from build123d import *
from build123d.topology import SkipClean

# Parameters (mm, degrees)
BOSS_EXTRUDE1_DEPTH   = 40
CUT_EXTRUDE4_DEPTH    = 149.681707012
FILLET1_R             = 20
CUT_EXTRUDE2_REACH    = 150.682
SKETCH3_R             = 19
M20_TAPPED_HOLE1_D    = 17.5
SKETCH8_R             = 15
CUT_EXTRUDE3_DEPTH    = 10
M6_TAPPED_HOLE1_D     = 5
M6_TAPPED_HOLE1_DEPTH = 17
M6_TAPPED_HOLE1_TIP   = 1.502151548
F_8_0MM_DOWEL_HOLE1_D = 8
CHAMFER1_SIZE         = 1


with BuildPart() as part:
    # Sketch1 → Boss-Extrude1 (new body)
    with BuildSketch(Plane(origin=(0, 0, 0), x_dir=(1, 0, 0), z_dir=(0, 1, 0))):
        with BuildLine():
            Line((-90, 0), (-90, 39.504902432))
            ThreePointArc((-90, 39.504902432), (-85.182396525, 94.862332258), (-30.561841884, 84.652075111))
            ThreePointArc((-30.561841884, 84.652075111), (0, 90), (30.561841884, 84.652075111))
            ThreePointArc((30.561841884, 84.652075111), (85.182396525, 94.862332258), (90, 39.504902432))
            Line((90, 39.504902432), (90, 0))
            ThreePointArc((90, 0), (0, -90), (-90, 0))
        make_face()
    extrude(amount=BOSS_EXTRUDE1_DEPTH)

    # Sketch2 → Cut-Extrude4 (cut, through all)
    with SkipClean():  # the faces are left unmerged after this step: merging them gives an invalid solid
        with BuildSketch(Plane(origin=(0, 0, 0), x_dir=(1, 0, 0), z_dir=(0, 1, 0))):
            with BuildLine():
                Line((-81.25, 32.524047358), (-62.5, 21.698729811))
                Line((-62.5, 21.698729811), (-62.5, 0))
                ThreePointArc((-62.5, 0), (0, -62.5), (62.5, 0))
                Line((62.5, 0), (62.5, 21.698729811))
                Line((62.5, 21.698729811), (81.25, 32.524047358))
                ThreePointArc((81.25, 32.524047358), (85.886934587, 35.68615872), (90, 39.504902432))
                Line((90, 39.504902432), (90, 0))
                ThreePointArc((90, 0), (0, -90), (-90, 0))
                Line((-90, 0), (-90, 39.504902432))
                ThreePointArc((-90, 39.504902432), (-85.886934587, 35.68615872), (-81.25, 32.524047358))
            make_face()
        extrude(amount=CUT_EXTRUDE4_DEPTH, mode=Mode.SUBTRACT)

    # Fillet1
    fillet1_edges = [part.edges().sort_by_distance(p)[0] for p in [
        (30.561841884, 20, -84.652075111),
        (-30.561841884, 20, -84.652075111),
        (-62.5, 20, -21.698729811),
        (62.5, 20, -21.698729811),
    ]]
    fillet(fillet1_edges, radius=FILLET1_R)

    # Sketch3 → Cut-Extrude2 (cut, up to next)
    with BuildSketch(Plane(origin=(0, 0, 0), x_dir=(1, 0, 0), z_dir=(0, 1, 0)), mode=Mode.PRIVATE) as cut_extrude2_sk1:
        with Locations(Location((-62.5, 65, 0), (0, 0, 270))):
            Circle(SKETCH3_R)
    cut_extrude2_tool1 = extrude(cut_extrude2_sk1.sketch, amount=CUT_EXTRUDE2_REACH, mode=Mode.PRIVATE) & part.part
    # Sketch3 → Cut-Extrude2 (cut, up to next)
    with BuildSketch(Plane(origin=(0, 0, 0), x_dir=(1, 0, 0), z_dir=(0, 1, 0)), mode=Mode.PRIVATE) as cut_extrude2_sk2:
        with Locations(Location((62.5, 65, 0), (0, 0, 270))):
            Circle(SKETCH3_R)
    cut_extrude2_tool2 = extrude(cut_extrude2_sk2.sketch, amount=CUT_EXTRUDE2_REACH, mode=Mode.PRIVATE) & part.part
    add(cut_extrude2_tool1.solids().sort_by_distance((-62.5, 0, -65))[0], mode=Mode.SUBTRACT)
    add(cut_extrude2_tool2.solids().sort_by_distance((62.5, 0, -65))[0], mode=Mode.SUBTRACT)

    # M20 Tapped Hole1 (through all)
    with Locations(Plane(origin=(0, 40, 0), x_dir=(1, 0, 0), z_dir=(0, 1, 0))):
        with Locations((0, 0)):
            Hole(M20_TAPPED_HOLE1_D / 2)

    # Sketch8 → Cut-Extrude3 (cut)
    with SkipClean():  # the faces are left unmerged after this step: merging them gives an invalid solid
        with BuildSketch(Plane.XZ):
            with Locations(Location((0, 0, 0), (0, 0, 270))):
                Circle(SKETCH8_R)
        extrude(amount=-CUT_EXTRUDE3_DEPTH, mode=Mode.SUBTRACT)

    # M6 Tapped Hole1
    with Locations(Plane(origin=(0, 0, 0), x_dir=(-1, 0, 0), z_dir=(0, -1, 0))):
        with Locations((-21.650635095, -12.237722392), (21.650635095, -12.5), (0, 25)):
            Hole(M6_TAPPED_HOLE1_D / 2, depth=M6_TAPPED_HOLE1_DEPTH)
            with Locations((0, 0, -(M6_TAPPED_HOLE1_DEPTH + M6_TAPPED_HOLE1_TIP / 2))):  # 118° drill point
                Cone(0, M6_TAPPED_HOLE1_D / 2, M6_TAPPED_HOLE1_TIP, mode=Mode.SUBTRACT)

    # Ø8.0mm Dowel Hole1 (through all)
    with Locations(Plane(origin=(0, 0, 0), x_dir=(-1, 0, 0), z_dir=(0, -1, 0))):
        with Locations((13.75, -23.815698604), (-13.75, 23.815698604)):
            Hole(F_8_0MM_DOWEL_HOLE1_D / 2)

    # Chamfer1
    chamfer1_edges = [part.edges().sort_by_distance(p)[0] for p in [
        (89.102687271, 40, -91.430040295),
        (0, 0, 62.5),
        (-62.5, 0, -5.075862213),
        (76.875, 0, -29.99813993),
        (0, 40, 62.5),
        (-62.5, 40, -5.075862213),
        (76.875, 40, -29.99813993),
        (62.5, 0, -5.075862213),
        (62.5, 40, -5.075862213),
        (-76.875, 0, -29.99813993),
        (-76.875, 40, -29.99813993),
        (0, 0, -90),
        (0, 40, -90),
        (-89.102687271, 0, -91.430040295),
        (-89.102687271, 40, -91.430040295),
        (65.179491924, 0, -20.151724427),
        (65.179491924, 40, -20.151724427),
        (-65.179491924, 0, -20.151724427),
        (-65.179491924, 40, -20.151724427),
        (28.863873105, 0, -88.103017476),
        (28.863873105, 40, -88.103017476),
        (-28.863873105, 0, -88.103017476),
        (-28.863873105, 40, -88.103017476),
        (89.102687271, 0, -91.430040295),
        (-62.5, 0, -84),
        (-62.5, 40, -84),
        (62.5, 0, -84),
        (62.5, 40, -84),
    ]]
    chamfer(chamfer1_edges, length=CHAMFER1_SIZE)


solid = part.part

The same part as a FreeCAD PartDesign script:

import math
import FreeCAD as App
import Part
import Sketcher
from FreeCAD import Vector
Q = App.Units.Quantity


def edges_at(feature, points):
    """Names of the edges that pass closest to the given points."""
    edges = feature.Shape.Edges
    near = lambda p: min(range(len(edges)), key=lambda i: edges[i].distToShape(Part.Vertex(*p))[0])
    return sorted({f"Edge{near(p) + 1}" for p in points})

doc = App.newDocument("Part")
body = doc.addObject("PartDesign::Body", "Body")

sketch1 = body.newObject("Sketcher::SketchObject", "Sketch")
sketch1.AttachmentSupport = (doc.getObject("XZ_Plane"), [""])
sketch1.MapMode = "FlatFace"
sketch1.addGeometry(Part.LineSegment(Vector(-90, -40, 0), Vector(-90, 0, 0)), False)
sketch1.addGeometry(Part.ArcOfCircle(Part.Circle(Vector(0, 0, 0), Vector(0, 0, 1), 90), math.radians(0), math.radians(180)), False)
sketch1.addGeometry(Part.LineSegment(Vector(90, 0, 0), Vector(90, -40, 0)), False)
sketch1.addGeometry(Part.ArcOfCircle(Part.Circle(Vector(62, -65, 0), Vector(0, 0, 1), 38), math.radians(-148), math.radians(43)), False)
sketch1.addGeometry(Part.ArcOfCircle(Part.Circle(Vector(0, 0, 0), Vector(0, 0, 1), 90), math.radians(-110), math.radians(-70)), False)
sketch1.addGeometry(Part.ArcOfCircle(Part.Circle(Vector(-62, -65, 0), Vector(0, 0, 1), 38), math.radians(137), math.radians(328)), False)
sketch1.addConstraint(Sketcher.Constraint("Tangent", 0, 2, 1, 2))
sketch1.addConstraint(Sketcher.Constraint("Tangent", 1, 1, 2, 1))
sketch1.addConstraint(Sketcher.Constraint("Coincident", 2, 2, 3, 2))
sketch1.addConstraint(Sketcher.Constraint("Coincident", 3, 1, 4, 2))
sketch1.addConstraint(Sketcher.Constraint("Coincident", 4, 1, 5, 2))
sketch1.addConstraint(Sketcher.Constraint("Coincident", 5, 1, 0, 1))
sketch1.addConstraint(Sketcher.Constraint("Vertical", 0))
sketch1.addConstraint(Sketcher.Constraint("Vertical", 2))
sketch1.addConstraint(Sketcher.Constraint("Coincident", 1, 3, -1, 1))
sketch1.addConstraint(Sketcher.Constraint("Coincident", 4, 3, -1, 1))
sketch1.addConstraint(Sketcher.Constraint("Equal", 1, 4))
sketch1.addConstraint(Sketcher.Constraint("Equal", 3, 5))
sketch1.addConstraint(Sketcher.Constraint("Symmetric", 3, 3, 5, 3, -2))
sketch1.addConstraint(Sketcher.Constraint("Radius", 1, Q("90 mm")))
sketch1.addConstraint(Sketcher.Constraint("Radius", 3, Q("37.5 mm")))
sketch1.addConstraint(Sketcher.Constraint("DistanceY", 3, 3, -1, 1, Q("65 mm")))
sketch1.addConstraint(Sketcher.Constraint("DistanceX", 5, 3, 3, 3, Q("125 mm")))
pad1 = body.newObject("PartDesign::Pad", "Pad")
pad1.Profile = sketch1
pad1.Length = 40
pad1.Reversed = True

sketch2 = body.newObject("Sketcher::SketchObject", "Sketch001")
sketch2.AttachmentSupport = (doc.getObject("XZ_Plane"), [""])
sketch2.MapMode = "FlatFace"
sketch2.addGeometry(Part.LineSegment(Vector(-62, -22, 0), Vector(-81, -33, 0)), False)
sketch2.addGeometry(Part.ArcOfCircle(Part.Circle(Vector(-62, -65, 0), Vector(0, 0, 1), 38), math.radians(120), math.radians(137.17)), False)
sketch2.addGeometry(Part.LineSegment(Vector(-90, -40, 0), Vector(-90, 0, 0)), False)
sketch2.addGeometry(Part.ArcOfCircle(Part.Circle(Vector(0, 0, 0), Vector(0, 0, 1), 90), math.radians(0), math.radians(180)), False)
sketch2.addGeometry(Part.LineSegment(Vector(90, 0, 0), Vector(90, -40, 0)), False)
sketch2.addGeometry(Part.ArcOfCircle(Part.Circle(Vector(62, -65, 0), Vector(0, 0, 1), 38), math.radians(42.83), math.radians(60)), False)
sketch2.addGeometry(Part.LineSegment(Vector(81, -33, 0), Vector(62, -22, 0)), False)
sketch2.addGeometry(Part.LineSegment(Vector(62, -22, 0), Vector(62, 0, 0)), False)
sketch2.addGeometry(Part.ArcOfCircle(Part.Circle(Vector(0, 0, 0), Vector(0, 0, 1), 62), math.radians(0), math.radians(180)), False)
sketch2.addGeometry(Part.LineSegment(Vector(-62, 0, 0), Vector(-62, -22, 0)), False)
sketch2.addConstraint(Sketcher.Constraint("Tangent", 0, 2, 1, 1))
sketch2.addConstraint(Sketcher.Constraint("Coincident", 1, 2, 2, 1))
sketch2.addConstraint(Sketcher.Constraint("Tangent", 2, 2, 3, 2))
sketch2.addConstraint(Sketcher.Constraint("Tangent", 3, 1, 4, 1))
sketch2.addConstraint(Sketcher.Constraint("Coincident", 4, 2, 5, 1))
sketch2.addConstraint(Sketcher.Constraint("Tangent", 5, 2, 6, 1))
sketch2.addConstraint(Sketcher.Constraint("Coincident", 6, 2, 7, 1))
sketch2.addConstraint(Sketcher.Constraint("Tangent", 7, 2, 8, 1))
sketch2.addConstraint(Sketcher.Constraint("Tangent", 8, 2, 9, 1))
sketch2.addConstraint(Sketcher.Constraint("Coincident", 9, 2, 0, 1))
sketch2.addConstraint(Sketcher.Constraint("Vertical", 2))
sketch2.addConstraint(Sketcher.Constraint("Vertical", 4))
sketch2.addConstraint(Sketcher.Constraint("Vertical", 7))
sketch2.addConstraint(Sketcher.Constraint("Vertical", 9))
sketch2.addConstraint(Sketcher.Constraint("Coincident", 3, 3, -1, 1))
sketch2.addConstraint(Sketcher.Constraint("Coincident", 8, 3, -1, 1))
sketch2.addConstraint(Sketcher.Constraint("Equal", 1, 5))
sketch2.addConstraint(Sketcher.Constraint("Symmetric", 1, 3, 5, 3, -2))
sketch2.addConstraint(Sketcher.Constraint("Horizontal", 0, 2, 5, 2))
sketch2.addConstraint(Sketcher.Constraint("Vertical", 5, 3, 6, 2))
sketch2.addConstraint(Sketcher.Constraint("Radius", 3, Q("90 mm")))
sketch2.addConstraint(Sketcher.Constraint("Radius", 1, Q("37.5 mm")))
sketch2.addConstraint(Sketcher.Constraint("Radius", 8, Q("62.5 mm")))
sketch2.addConstraint(Sketcher.Constraint("Angle", 0, Q("-150 deg")))
sketch2.addConstraint(Sketcher.Constraint("DistanceY", 1, 3, -1, 1, Q("65 mm")))
pocket1 = body.newObject("PartDesign::Pocket", "Pocket")
pocket1.Profile = sketch2
pocket1.Type = "ThroughAll"
doc.recompute()

fillet = body.newObject("PartDesign::Fillet", "Fillet")
fillet.Base = (pocket1, edges_at(pocket1, [
    (30.562, 20, -84.652),
    (-30.562, 20, -84.652),
    (-62.5, 20, -21.699),
    (62.5, 20, -21.699),
]))
fillet.Radius = 20

sketch3 = body.newObject("Sketcher::SketchObject", "Sketch002")
sketch3.AttachmentSupport = (doc.getObject("XZ_Plane"), [""])
sketch3.MapMode = "FlatFace"
sketch3.addGeometry(Part.Circle(Vector(-62, -65, 0), Vector(0, 0, 1), 19), False)
sketch3.addConstraint(Sketcher.Constraint("Diameter", 0, Q("38 mm")))
sketch3.addConstraint(Sketcher.Constraint("DistanceY", 0, 3, -1, 1, Q("65 mm")))
sketch3.addConstraint(Sketcher.Constraint("DistanceX", 0, 3, -1, 1, Q("62.5 mm")))
pocket2 = body.newObject("PartDesign::Pocket", "Pocket001")
pocket2.Profile = sketch3
pocket2.Type = "UpToFirst"

sketch4 = body.newObject("Sketcher::SketchObject", "Sketch003")
sketch4.AttachmentSupport = (doc.getObject("XZ_Plane"), [""])
sketch4.MapMode = "FlatFace"
sketch4.addGeometry(Part.Circle(Vector(62, -65, 0), Vector(0, 0, 1), 19), False)
sketch4.addConstraint(Sketcher.Constraint("Diameter", 0, Q("38 mm")))
sketch4.addConstraint(Sketcher.Constraint("DistanceY", 0, 3, -1, 1, Q("65 mm")))
sketch4.addConstraint(Sketcher.Constraint("DistanceX", -1, 1, 0, 3, Q("62.5 mm")))
pocket3 = body.newObject("PartDesign::Pocket", "Pocket002")
pocket3.Profile = sketch4
pocket3.Type = "UpToFirst"

sketch5 = body.newObject("Sketcher::SketchObject", "Sketch004")
sketch5.AttachmentSupport = (doc.getObject("XZ_Plane"), [""])
sketch5.MapMode = "FlatFace"
sketch5.AttachmentOffset = App.Placement(Vector(0, 0, -40), App.Rotation())
sketch5.addGeometry(Part.Circle(Vector(0, 0, 0), Vector(0, 0, 1), 9), False)
sketch5.addConstraint(Sketcher.Constraint("Coincident", 0, 3, -1, 1))
sketch5.addConstraint(Sketcher.Constraint("Diameter", 0, Q("17.5 mm")))
doc.recompute()
hole = body.newObject("PartDesign::Hole", "Hole")
hole.Profile = sketch5
hole.ThreadType = "None"
hole.Diameter = 17.5
hole.DepthType = "ThroughAll"
hole.Reversed = True

sketch6 = body.newObject("Sketcher::SketchObject", "Sketch005")
sketch6.AttachmentSupport = (doc.getObject("XZ_Plane"), [""])
sketch6.MapMode = "FlatFace"
sketch6.addGeometry(Part.Circle(Vector(0, 0, 0), Vector(0, 0, 1), 15), False)
sketch6.addConstraint(Sketcher.Constraint("Coincident", 0, 3, -1, 1))
sketch6.addConstraint(Sketcher.Constraint("Diameter", 0, Q("30 mm")))
pocket4 = body.newObject("PartDesign::Pocket", "Pocket003")
pocket4.Profile = sketch6
pocket4.Length = 10

sketch7 = body.newObject("Sketcher::SketchObject", "Sketch006")
sketch7.AttachmentSupport = (doc.getObject("XZ_Plane"), [""])
sketch7.MapMode = "FlatFace"
sketch7.addGeometry(Part.Circle(Vector(21.7, 12.2, 0), Vector(0, 0, 1), 2.5), False)
sketch7.addGeometry(Part.Circle(Vector(-21.7, 12.5, 0), Vector(0, 0, 1), 2.5), False)
sketch7.addGeometry(Part.Circle(Vector(0, -25, 0), Vector(0, 0, 1), 2.5), False)
sketch7.addConstraint(Sketcher.Constraint("Equal", 0, 1))
sketch7.addConstraint(Sketcher.Constraint("Equal", 1, 2))
sketch7.addConstraint(Sketcher.Constraint("PointOnObject", 2, 3, -2))
sketch7.addConstraint(Sketcher.Constraint("Diameter", 0, Q("5 mm")))
sketch7.addConstraint(Sketcher.Constraint("DistanceY", 2, 3, -1, 1, Q("25 mm")))
sketch7.addConstraint(Sketcher.Constraint("DistanceY", -1, 1, 1, 3, Q("12.5 mm")))
sketch7.addConstraint(Sketcher.Constraint("DistanceX", 1, 3, 0, 3, Q("43.30127 mm")))
sketch7.addConstraint(Sketcher.Constraint("DistanceX", -1, 1, 0, 3, Q("21.650635 mm")))
sketch7.addConstraint(Sketcher.Constraint("DistanceY", -1, 1, 0, 3, Q("12.237722 mm")))
doc.recompute()
hole2 = body.newObject("PartDesign::Hole", "Hole001")
hole2.Profile = sketch7
hole2.ThreadType = "None"
hole2.Diameter = 5
hole2.DepthType = "Dimension"
hole2.Depth = 17
hole2.DrillPoint = "Angled"
hole2.DrillPointAngle = 118

sketch8 = body.newObject("Sketcher::SketchObject", "Sketch007")
sketch8.AttachmentSupport = (doc.getObject("XZ_Plane"), [""])
sketch8.MapMode = "FlatFace"
sketch8.addGeometry(Part.Circle(Vector(-13.8, 23.8, 0), Vector(0, 0, 1), 4), False)
sketch8.addGeometry(Part.Circle(Vector(13.8, -23.8, 0), Vector(0, 0, 1), 4), False)
sketch8.addConstraint(Sketcher.Constraint("Equal", 0, 1))
sketch8.addConstraint(Sketcher.Constraint("Symmetric", 0, 3, 1, 3, -1, 1))
sketch8.addConstraint(Sketcher.Constraint("Diameter", 0, Q("8 mm")))
sketch8.addConstraint(Sketcher.Constraint("DistanceX", 0, 3, 1, 3, Q("27.5 mm")))
sketch8.addConstraint(Sketcher.Constraint("DistanceY", -1, 1, 0, 3, Q("23.815699 mm")))
doc.recompute()
hole3 = body.newObject("PartDesign::Hole", "Hole002")
hole3.Profile = sketch8
hole3.ThreadType = "None"
hole3.Diameter = 8
hole3.DepthType = "ThroughAll"
doc.recompute()

chamfer = body.newObject("PartDesign::Chamfer", "Chamfer")
chamfer.Base = (hole3, edges_at(hole3, [
    (89.103, 40, -91.43),
    (0, 0, 62.5),
    (-62.5, 0, -5.076),
    (76.875, 0, -29.998),
    (0, 40, 62.5),
    (-62.5, 40, -5.076),
    (76.875, 40, -29.998),
    (62.5, 0, -5.076),
    (62.5, 40, -5.076),
    (-76.875, 0, -29.998),
    (-76.875, 40, -29.998),
    (0, 0, -90),
    (0, 40, -90),
    (-89.103, 0, -91.43),
    (-89.103, 40, -91.43),
    (65.179, 0, -20.152),
    (65.179, 40, -20.152),
    (-65.179, 0, -20.152),
    (-65.179, 40, -20.152),
    (28.864, 0, -88.103),
    (28.864, 40, -88.103),
    (-28.864, 0, -88.103),
    (-28.864, 40, -88.103),
    (89.103, 0, -91.43),
    (-62.5, 0, -84),
    (-62.5, 40, -84),
    (62.5, 0, -84),
    (62.5, 40, -84),
]))
chamfer.Size = 1

doc.recompute()
